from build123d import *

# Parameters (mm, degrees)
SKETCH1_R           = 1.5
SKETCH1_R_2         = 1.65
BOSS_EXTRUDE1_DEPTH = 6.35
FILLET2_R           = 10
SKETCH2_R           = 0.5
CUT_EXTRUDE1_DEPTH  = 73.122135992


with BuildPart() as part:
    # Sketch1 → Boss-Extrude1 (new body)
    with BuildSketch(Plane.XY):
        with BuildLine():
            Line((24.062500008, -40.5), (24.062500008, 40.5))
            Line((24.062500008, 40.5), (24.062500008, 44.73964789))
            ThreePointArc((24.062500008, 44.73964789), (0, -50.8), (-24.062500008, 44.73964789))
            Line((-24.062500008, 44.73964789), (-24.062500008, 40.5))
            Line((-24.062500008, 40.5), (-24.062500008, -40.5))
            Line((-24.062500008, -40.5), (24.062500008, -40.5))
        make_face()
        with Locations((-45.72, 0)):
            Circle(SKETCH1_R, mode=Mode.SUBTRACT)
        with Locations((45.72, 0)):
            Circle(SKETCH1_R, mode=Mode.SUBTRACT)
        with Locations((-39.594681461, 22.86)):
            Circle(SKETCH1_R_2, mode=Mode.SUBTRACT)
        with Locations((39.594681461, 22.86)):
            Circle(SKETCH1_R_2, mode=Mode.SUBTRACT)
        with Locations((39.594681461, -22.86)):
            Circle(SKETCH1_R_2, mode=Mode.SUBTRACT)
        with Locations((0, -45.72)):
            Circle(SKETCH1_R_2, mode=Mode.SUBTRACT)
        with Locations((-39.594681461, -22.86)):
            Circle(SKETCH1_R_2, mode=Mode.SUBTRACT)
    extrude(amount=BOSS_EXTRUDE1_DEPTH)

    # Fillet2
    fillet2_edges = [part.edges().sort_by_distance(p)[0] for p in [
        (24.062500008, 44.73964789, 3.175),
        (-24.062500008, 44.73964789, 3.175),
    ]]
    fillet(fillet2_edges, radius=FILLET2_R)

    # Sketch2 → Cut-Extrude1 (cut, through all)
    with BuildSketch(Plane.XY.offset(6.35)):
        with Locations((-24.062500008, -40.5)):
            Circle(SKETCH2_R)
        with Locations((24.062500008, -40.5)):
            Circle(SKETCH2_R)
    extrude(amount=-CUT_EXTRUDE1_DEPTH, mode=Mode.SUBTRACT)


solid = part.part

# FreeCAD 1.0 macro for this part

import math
import FreeCAD as App
import Part
import Sketcher

V = App.Vector
Q = App.Units.Quantity


def edges_at(feature, points):
    """Names of the edges that pass closest to the given points."""
    edges = feature.Shape.Edges
    near = lambda p: min(range(len(edges)), key=lambda i: edges[i].distToShape(Part.Vertex(*p))[0])
    return sorted({f"Edge{near(p) + 1}" for p in points})

doc = App.newDocument("Part")
body = doc.addObject("PartDesign::Body", "Body")

# Sketch on XY plane
sketch1 = body.newObject("Sketcher::SketchObject", "Sketch")
sketch1.AttachmentSupport = (doc.getObject("XY_Plane"), [""])
sketch1.MapMode = "FlatFace"
sketch1.addGeometry([
    Part.LineSegment(V(24.1, 44.7, 0), V(24.1, -40.5, 0)),  # 0
    Part.LineSegment(V(24.1, -40.5, 0), V(-24.1, -40.5, 0)),  # 1
    Part.LineSegment(V(-24.1, -40.5, 0), V(-24.1, 44.7, 0)),  # 2
    Part.ArcOfCircle(Part.Circle(V(0, 0, 0), V(0, 0, 1), 50.8), math.radians(118), math.radians(422)),  # 3
    Part.Circle(V(0, -45.7, 0), V(0, 0, 1), 1.6),  # 4
    Part.Circle(V(39.6, -22.9, 0), V(0, 0, 1), 1.6),  # 5
    Part.Circle(V(-39.6, -22.9, 0), V(0, 0, 1), 1.6),  # 6
    Part.Circle(V(45.7, 0, 0), V(0, 0, 1), 1.5),  # 7
    Part.Circle(V(39.6, 22.9, 0), V(0, 0, 1), 1.6),  # 8
    Part.Circle(V(-45.7, 0, 0), V(0, 0, 1), 1.5),  # 9
    Part.Circle(V(-39.6, 22.9, 0), V(0, 0, 1), 1.6),  # 10
], False)
sketch1.addConstraint([
    Sketcher.Constraint("Coincident", 0, 2, 1, 1),
    Sketcher.Constraint("Coincident", 1, 2, 2, 1),
    Sketcher.Constraint("Coincident", 2, 2, 3, 1),
    Sketcher.Constraint("Coincident", 3, 2, 0, 1),
    Sketcher.Constraint("Vertical", 0),
    Sketcher.Constraint("Horizontal", 1),
    Sketcher.Constraint("Vertical", 2),
    Sketcher.Constraint("Coincident", 3, 3, -1, 1),
    Sketcher.Constraint("Equal", 4, 5),
    Sketcher.Constraint("Equal", 5, 6),
    Sketcher.Constraint("Equal", 6, 8),
    Sketcher.Constraint("Equal", 7, 9),
    Sketcher.Constraint("Equal", 8, 10),
    Sketcher.Constraint("Symmetric", 6, 3, 8, 3, -1, 1),
    Sketcher.Constraint("Symmetric", 7, 3, 9, 3, -1, 1),
    Sketcher.Constraint("Symmetric", 5, 3, 10, 3, -1, 1),
    Sketcher.Constraint("Symmetric", 5, 3, 6, 3, -2),
    Sketcher.Constraint("PointOnObject", 4, 3, -2),
    Sketcher.Constraint("PointOnObject", 7, 3, -1),
    Sketcher.Constraint("Horizontal", 2, 2, 3, 2),
    Sketcher.Constraint("Diameter", 7, Q("3 mm")),
    Sketcher.Constraint("Diameter", 4, Q("3.3 mm")),
    Sketcher.Constraint("Radius", 3, Q("50.8 mm")),
    Sketcher.Constraint("DistanceY", 0, 2, -1, 1, Q("40.5 mm")),
    Sketcher.Constraint("DistanceX", 1, 2, 1, 1, Q("48.125 mm")),
    Sketcher.Constraint("DistanceY", 4, 3, -1, 1, Q("45.72 mm")),
    Sketcher.Constraint("DistanceY", 5, 3, -1, 1, Q("22.86 mm")),
    Sketcher.Constraint("DistanceX", -1, 1, 7, 3, Q("45.72 mm")),
    Sketcher.Constraint("DistanceX", -1, 1, 5, 3, Q("39.594681 mm")),
])
pad1 = body.newObject("PartDesign::Pad", "Pad")
pad1.Profile = sketch1
pad1.Length = 6.35
doc.recompute()

fillet = body.newObject("PartDesign::Fillet", "Fillet")
fillet.Base = (pad1, edges_at(pad1, [(24.063, 44.74, 3.175), (-24.063, 44.74, 3.175)]))
fillet.Radius = 10

# Sketch on XY plane
sketch2 = body.newObject("Sketcher::SketchObject", "Sketch001")
sketch2.AttachmentSupport = (doc.getObject("XY_Plane"), [""])
sketch2.MapMode = "FlatFace"
sketch2.AttachmentOffset = App.Placement(V(0, 0, 6.35), App.Rotation())
sketch2.addGeometry([
    Part.Circle(V(-24.1, -40.5, 0), V(0, 0, 1), 0.5),
    Part.Circle(V(24.1, -40.5, 0), V(0, 0, 1), 0.5),
], False)
sketch2.addConstraint([
    Sketcher.Constraint("Equal", 0, 1),
    Sketcher.Constraint("Symmetric", 0, 3, 1, 3, -2),
    Sketcher.Constraint("Diameter", 0, Q("1 mm")),
    Sketcher.Constraint("DistanceY", 0, 3, -1, 1, Q("40.5 mm")),
    Sketcher.Constraint("DistanceX", 0, 3, 1, 3, Q("48.125 mm")),
])
pocket1 = body.newObject("PartDesign::Pocket", "Pocket")
pocket1.Profile = sketch2
pocket1.Type = "ThroughAll"

doc.recompute()
